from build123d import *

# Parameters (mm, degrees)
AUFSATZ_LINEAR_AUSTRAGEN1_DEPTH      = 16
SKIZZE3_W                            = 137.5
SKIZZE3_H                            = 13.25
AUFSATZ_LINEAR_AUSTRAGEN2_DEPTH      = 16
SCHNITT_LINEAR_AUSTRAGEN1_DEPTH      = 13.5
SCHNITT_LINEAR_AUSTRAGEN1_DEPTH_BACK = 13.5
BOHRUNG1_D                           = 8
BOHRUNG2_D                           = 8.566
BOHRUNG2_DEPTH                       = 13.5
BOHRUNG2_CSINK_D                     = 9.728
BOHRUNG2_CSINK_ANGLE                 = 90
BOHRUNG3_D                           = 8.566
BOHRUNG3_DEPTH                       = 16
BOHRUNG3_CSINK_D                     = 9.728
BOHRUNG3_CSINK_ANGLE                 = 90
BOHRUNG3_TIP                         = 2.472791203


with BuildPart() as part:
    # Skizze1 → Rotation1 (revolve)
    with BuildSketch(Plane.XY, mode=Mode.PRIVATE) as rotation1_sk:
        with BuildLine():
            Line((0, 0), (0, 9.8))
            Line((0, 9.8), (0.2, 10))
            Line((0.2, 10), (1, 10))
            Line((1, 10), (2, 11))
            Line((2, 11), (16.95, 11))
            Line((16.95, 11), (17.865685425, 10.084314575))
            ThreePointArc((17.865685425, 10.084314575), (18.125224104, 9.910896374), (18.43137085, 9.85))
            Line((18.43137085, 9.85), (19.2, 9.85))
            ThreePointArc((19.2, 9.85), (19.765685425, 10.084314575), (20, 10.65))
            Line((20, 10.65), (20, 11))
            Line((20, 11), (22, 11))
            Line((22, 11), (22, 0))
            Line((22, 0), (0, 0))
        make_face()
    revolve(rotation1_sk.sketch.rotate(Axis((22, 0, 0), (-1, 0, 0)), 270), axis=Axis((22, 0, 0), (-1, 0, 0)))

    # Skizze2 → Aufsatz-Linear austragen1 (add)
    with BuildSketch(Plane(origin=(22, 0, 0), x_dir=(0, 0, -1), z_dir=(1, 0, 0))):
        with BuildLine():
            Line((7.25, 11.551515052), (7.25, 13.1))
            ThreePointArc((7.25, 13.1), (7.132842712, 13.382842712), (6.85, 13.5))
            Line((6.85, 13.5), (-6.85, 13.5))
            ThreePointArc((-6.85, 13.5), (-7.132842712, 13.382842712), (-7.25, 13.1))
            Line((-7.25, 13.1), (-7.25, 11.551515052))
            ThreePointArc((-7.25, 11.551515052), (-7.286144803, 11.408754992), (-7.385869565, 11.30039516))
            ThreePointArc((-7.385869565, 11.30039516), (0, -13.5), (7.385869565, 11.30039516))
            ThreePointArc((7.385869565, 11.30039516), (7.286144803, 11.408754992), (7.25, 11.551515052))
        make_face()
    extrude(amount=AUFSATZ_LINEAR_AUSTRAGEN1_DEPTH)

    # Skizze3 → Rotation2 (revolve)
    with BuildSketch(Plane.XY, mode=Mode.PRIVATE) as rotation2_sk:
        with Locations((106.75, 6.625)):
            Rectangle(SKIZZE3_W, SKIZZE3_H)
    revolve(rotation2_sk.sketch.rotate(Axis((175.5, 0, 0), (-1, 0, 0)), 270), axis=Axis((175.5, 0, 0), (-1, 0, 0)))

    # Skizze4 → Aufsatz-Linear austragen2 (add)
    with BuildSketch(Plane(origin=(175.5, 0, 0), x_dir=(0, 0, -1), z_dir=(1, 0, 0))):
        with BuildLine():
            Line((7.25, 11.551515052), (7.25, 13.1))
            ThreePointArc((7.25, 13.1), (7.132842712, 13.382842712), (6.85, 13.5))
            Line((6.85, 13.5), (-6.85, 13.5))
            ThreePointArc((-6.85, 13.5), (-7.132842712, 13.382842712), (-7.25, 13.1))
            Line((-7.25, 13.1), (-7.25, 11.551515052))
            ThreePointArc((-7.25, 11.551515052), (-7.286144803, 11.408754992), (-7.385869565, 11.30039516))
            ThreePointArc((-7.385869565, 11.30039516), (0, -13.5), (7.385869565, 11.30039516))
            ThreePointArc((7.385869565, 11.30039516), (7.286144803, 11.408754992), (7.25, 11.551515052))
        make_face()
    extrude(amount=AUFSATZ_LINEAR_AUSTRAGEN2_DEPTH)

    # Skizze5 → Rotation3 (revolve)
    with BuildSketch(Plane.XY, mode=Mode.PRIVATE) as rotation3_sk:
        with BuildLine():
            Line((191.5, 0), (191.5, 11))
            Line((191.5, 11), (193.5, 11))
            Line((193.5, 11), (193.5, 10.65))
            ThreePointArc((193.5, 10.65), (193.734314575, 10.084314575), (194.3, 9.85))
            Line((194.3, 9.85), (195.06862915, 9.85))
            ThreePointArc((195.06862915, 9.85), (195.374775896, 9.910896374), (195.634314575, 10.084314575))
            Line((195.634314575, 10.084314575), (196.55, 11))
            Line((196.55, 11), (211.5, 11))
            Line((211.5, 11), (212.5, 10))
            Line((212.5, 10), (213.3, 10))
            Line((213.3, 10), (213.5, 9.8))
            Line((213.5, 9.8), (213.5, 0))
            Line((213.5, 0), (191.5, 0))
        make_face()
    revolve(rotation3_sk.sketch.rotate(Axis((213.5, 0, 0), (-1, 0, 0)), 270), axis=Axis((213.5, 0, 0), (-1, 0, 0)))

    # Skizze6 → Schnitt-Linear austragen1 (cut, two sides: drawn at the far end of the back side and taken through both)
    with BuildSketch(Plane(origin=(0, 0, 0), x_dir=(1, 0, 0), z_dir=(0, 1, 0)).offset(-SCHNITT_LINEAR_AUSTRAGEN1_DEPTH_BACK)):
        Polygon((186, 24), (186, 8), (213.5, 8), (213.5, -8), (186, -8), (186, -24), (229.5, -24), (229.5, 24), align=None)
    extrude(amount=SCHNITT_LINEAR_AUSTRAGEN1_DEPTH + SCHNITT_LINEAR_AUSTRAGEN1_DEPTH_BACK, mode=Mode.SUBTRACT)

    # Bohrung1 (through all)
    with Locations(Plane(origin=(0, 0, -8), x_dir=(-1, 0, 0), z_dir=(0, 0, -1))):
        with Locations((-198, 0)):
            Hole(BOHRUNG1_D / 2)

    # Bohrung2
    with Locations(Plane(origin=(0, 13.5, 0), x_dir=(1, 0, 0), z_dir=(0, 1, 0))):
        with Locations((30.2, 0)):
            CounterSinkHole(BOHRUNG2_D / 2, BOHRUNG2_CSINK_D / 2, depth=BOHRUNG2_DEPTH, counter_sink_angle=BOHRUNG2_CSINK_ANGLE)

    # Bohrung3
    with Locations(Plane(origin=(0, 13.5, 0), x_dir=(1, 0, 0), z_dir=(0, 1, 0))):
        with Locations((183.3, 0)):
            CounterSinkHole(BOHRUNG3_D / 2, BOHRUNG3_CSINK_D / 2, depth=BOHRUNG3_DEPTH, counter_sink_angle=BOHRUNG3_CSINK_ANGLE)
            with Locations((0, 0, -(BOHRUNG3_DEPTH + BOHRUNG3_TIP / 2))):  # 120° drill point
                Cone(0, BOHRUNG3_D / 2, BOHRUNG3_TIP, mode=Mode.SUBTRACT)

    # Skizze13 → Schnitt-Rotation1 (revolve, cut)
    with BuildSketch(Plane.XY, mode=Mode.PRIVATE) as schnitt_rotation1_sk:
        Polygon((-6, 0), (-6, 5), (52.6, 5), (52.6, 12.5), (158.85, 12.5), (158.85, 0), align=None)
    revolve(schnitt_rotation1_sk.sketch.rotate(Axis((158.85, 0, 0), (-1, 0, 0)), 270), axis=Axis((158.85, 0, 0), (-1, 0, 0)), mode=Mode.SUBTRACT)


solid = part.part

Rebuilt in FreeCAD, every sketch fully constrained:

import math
import FreeCAD as App
import Part
import Sketcher
Q = App.Units.Quantity


def add_polygon(sketch, points):
    """Adds a closed chain of lines whose ends are joined by coincident constraints."""
    first, n = sketch.GeometryCount, len(points)
    for a, b in zip(points, points[1:] + points[:1]):
        sketch.addGeometry(Part.LineSegment(App.Vector(*a, 0), App.Vector(*b, 0)), False)
    for i in range(n):
        sketch.addConstraint(Sketcher.Constraint("Coincident", first + i, 2, first + (i + 1) % n, 1))

doc = App.newDocument("Part")
params = doc.addObject("Spreadsheet::Sheet", "Params")
for row, (alias, value) in enumerate([
    ("sketch1_radius", "0.8 mm"),
    ("sketch1_width", "22 mm"),
    ("sketch1_width2", "2 mm"),
    ("sketch1_height", "11 mm"),
    ("sketch1_width3", "0.8 mm"),
    ("revolution_angle", "360 deg"),
    ("sketch2_radius", "0.4 mm"),
    ("sketch2_radius2", "0.3 mm"),
    ("sketch2_radius3", "13.5 mm"),
    ("sketch2_height", "13.7 mm"),
    ("pad1_length", "16 mm"),
    ("sketch3_width", "137.5 mm"),
    ("sketch3_height", "13.25 mm"),
    ("revolution2_angle", "360 deg"),
    ("sketch4_radius", "0.4 mm"),
    ("sketch4_radius2", "0.3 mm"),
    ("sketch4_radius3", "13.5 mm"),
    ("sketch4_height", "13.7 mm"),
    ("pad2_length", "16 mm"),
    ("sketch5_radius", "0.8 mm"),
    ("sketch5_width", "22 mm"),
    ("sketch5_width2", "2 mm"),
    ("sketch5_height", "11 mm"),
    ("sketch5_width3", "0.8 mm"),
    ("revolution3_angle", "360 deg"),
    ("sketch6_height", "16 mm"),
    ("sketch6_width", "27.5 mm"),
    ("sketch6_width2", "43.5 mm"),
    ("sketch7_diameter", "8 mm"),
    ("hole_diameter", "8 mm"),
    ("hole2_diameter", "8.566 mm"),
    ("hole2_depth", "13.5 mm"),
    ("hole2_csink_diameter", "9.728 mm"),
    ("hole3_diameter", "8.566 mm"),
    ("hole3_depth", "16 mm"),
    ("hole3_csink_diameter", "9.728 mm"),
    ("sketch10_height", "5 mm"),
    ("sketch10_width", "58.6 mm"),
    ("sketch10_height2", "12.5 mm"),
    ("sketch10_width2", "164.85 mm"),
    ("groove_angle", "360 deg"),
], start=1):
    params.set(f"A{row}", alias)
    params.set(f"B{row}", "=" + value)
    params.setAlias(f"B{row}", alias)

body = doc.addObject("PartDesign::Body", "Body")

# Sketch on XY plane
sketch1 = body.newObject("Sketcher::SketchObject", "Sketch")
sketch1.AttachmentSupport = (doc.getObject("XY_Plane"), [""])
sketch1.MapMode = "FlatFace"
sketch1.addGeometry([
    Part.LineSegment(App.Vector(0, 9.8, 0), App.Vector(0, 0, 0)),  # 0
    Part.LineSegment(App.Vector(0, 0, 0), App.Vector(22, 0, 0)),  # 1
    Part.LineSegment(App.Vector(22, 0, 0), App.Vector(22, 11, 0)),  # 2
    Part.LineSegment(App.Vector(22, 11, 0), App.Vector(20, 11, 0)),  # 3
    Part.LineSegment(App.Vector(20, 11, 0), App.Vector(20, 10.65, 0)),  # 4
    Part.ArcOfCircle(Part.Circle(App.Vector(19.2, 10.65, 0), App.Vector(0, 0, 1), 0.8), math.radians(-90), math.radians(0)),  # 5
    Part.LineSegment(App.Vector(19.2, 9.85, 0), App.Vector(18.43, 9.85, 0)),  # 6
    Part.ArcOfCircle(Part.Circle(App.Vector(18.43, 10.65, 0), App.Vector(0, 0, 1), 0.8), math.radians(-135), math.radians(-90)),  # 7
    Part.LineSegment(App.Vector(17.87, 10.08, 0), App.Vector(16.95, 11, 0)),  # 8
    Part.LineSegment(App.Vector(16.95, 11, 0), App.Vector(2, 11, 0)),  # 9
    Part.LineSegment(App.Vector(2, 11, 0), App.Vector(1, 10, 0)),  # 10
    Part.LineSegment(App.Vector(1, 10, 0), App.Vector(0.2, 10, 0)),  # 11
    Part.LineSegment(App.Vector(0.2, 10, 0), App.Vector(0, 9.8, 0)),  # 12
], False)
sketch1.addConstraint([
    Sketcher.Constraint("Coincident", 0, 2, 1, 1),
    Sketcher.Constraint("Coincident", 1, 2, 2, 1),
    Sketcher.Constraint("Coincident", 2, 2, 3, 1),
    Sketcher.Constraint("Coincident", 3, 2, 4, 1),
    Sketcher.Constraint("Tangent", 4, 2, 5, 2),
    Sketcher.Constraint("Tangent", 5, 1, 6, 1),
    Sketcher.Constraint("Tangent", 6, 2, 7, 2),
    Sketcher.Constraint("Tangent", 7, 1, 8, 1),
    Sketcher.Constraint("Coincident", 8, 2, 9, 1),
    Sketcher.Constraint("Coincident", 9, 2, 10, 1),
    Sketcher.Constraint("Coincident", 10, 2, 11, 1),
    Sketcher.Constraint("Coincident", 11, 2, 12, 1),
    Sketcher.Constraint("Coincident", 12, 2, 0, 1),
    Sketcher.Constraint("Vertical", 0),
    Sketcher.Constraint("Horizontal", 1),
    Sketcher.Constraint("Vertical", 2),
    Sketcher.Constraint("Horizontal", 3),
    Sketcher.Constraint("Vertical", 4),
    Sketcher.Constraint("Horizontal", 6),
    Sketcher.Constraint("Horizontal", 9),
    Sketcher.Constraint("Horizontal", 11),
    Sketcher.Constraint("Coincident", 0, 2, -1, 1),
    Sketcher.Constraint("Equal", 5, 7),
    Sketcher.Constraint("Perpendicular", 8, 10),
    Sketcher.Constraint("Parallel", 10, 12),
    Sketcher.Constraint("Horizontal", 3, 2, 8, 2),
    Sketcher.Constraint("Radius", 5, Q("0.8 mm")),
    Sketcher.Constraint("DistanceX", 1, 1, 1, 2, Q("22 mm")),
    Sketcher.Constraint("DistanceX", 3, 2, 3, 1, Q("2 mm")),
    Sketcher.Constraint("DistanceY", 2, 1, 2, 2, Q("11 mm")),
    Sketcher.Constraint("Angle", 8, Q("135 deg")),
    Sketcher.Constraint("DistanceX", 11, 2, 11, 1, Q("0.8 mm")),
    Sketcher.Constraint("DistanceY", 0, 2, 0, 1, Q("9.8 mm")),
    Sketcher.Constraint("DistanceX", -1, 1, 10, 2, Q("1 mm")),
    Sketcher.Constraint("DistanceX", 9, 2, 9, 1, Q("14.95 mm")),
    Sketcher.Constraint("DistanceY", 4, 2, 4, 1, Q("0.35 mm")),
])
sketch1.setExpression("Constraints[26]", "Params.sketch1_radius")
sketch1.setExpression("Constraints[27]", "Params.sketch1_width")
sketch1.setExpression("Constraints[28]", "Params.sketch1_width2")
sketch1.setExpression("Constraints[29]", "Params.sketch1_height")
sketch1.setExpression("Constraints[31]", "Params.sketch1_width3")
revolution = body.newObject("PartDesign::Revolution", "Revolution")
revolution.Profile = sketch1
revolution.ReferenceAxis = (sketch1, ["H_Axis"])
revolution.setExpression("Angle", "Params.revolution_angle")

# Sketch on YZ plane
sketch2 = body.newObject("Sketcher::SketchObject", "Sketch001")
sketch2.AttachmentSupport = (doc.getObject("YZ_Plane"), [""])
sketch2.MapMode = "FlatFace"
sketch2.AttachmentOffset = App.Placement(App.Vector(0, 0, 22), App.Rotation())
sketch2.addGeometry([
    Part.LineSegment(App.Vector(11.55, -7.25, 0), App.Vector(13.1, -7.25, 0)),  # 0
    Part.ArcOfCircle(Part.Circle(App.Vector(13.1, -6.85, 0), App.Vector(0, 0, 1), 0.4), math.radians(-90), math.radians(0)),  # 1
    Part.LineSegment(App.Vector(13.5, -6.85, 0), App.Vector(13.5, 6.85, 0)),  # 2
    Part.ArcOfCircle(Part.Circle(App.Vector(13.1, 6.85, 0), App.Vector(0, 0, 1), 0.4), math.radians(0), math.radians(90)),  # 3
    Part.LineSegment(App.Vector(13.1, 7.25, 0), App.Vector(11.55, 7.25, 0)),  # 4
    Part.ArcOfCircle(Part.Circle(App.Vector(11.55, 7.55, 0), App.Vector(0, 0, 1), 0.3), math.radians(-147), math.radians(-90)),  # 5
    Part.ArcOfCircle(Part.Circle(App.Vector(0, 0, 0), App.Vector(0, 0, 1), 13.5), math.radians(33), math.radians(327)),  # 6
    Part.ArcOfCircle(Part.Circle(App.Vector(11.55, -7.55, 0), App.Vector(0, 0, 1), 0.3), math.radians(90), math.radians(147)),  # 7
], False)
sketch2.addConstraint([
    Sketcher.Constraint("Tangent", 0, 2, 1, 1),
    Sketcher.Constraint("Tangent", 1, 2, 2, 1),
    Sketcher.Constraint("Tangent", 2, 2, 3, 1),
    Sketcher.Constraint("Tangent", 3, 2, 4, 1),
    Sketcher.Constraint("Tangent", 4, 2, 5, 2),
    Sketcher.Constraint("Tangent", 5, 1, 6, 1),
    Sketcher.Constraint("Tangent", 6, 2, 7, 2),
    Sketcher.Constraint("Tangent", 7, 1, 0, 1),
    Sketcher.Constraint("Horizontal", 0),
    Sketcher.Constraint("Vertical", 2),
    Sketcher.Constraint("Horizontal", 4),
    Sketcher.Constraint("Coincident", 6, 3, -1, 1),
    Sketcher.Constraint("Equal", 1, 3),
    Sketcher.Constraint("Equal", 5, 7),
    Sketcher.Constraint("Vertical", 5, 3, 7, 3),
    Sketcher.Constraint("Radius", 1, Q("0.4 mm")),
    Sketcher.Constraint("Radius", 5, Q("0.3 mm")),
    Sketcher.Constraint("Radius", 6, Q("13.5 mm")),
    Sketcher.Constraint("DistanceY", 2, 1, 2, 2, Q("13.7 mm")),
    Sketcher.Constraint("DistanceX", -1, 1, 1, 3, Q("13.1 mm")),
])
sketch2.setExpression("Constraints[15]", "Params.sketch2_radius")
sketch2.setExpression("Constraints[16]", "Params.sketch2_radius2")
sketch2.setExpression("Constraints[17]", "Params.sketch2_radius3")
sketch2.setExpression("Constraints[18]", "Params.sketch2_height")
pad1 = body.newObject("PartDesign::Pad", "Pad")
pad1.Profile = sketch2
pad1.setExpression("Length", "Params.pad1_length")

# Sketch on XY plane
sketch3 = body.newObject("Sketcher::SketchObject", "Sketch002")
sketch3.AttachmentSupport = (doc.getObject("XY_Plane"), [""])
sketch3.MapMode = "FlatFace"
add_polygon(sketch3, [(38, 13), (38, 0), (176, 0), (176, 13)])  # lines 0-3
sketch3.addConstraint([
    Sketcher.Constraint("Vertical", 0),
    Sketcher.Constraint("Horizontal", 1),
    Sketcher.Constraint("Vertical", 2),
    Sketcher.Constraint("Horizontal", 3),
    Sketcher.Constraint("PointOnObject", 0, 2, -1),
    Sketcher.Constraint("DistanceX", 1, 1, 1, 2, Q("137.5 mm")),
    Sketcher.Constraint("DistanceX", -1, 1, 0, 2, Q("38 mm")),
    Sketcher.Constraint("DistanceY", 0, 2, 0, 1, Q("13.25 mm")),
])
sketch3.setExpression("Constraints[9]", "Params.sketch3_width")
sketch3.setExpression("Constraints[11]", "Params.sketch3_height")
revolution2 = body.newObject("PartDesign::Revolution", "Revolution001")
revolution2.Profile = sketch3
revolution2.ReferenceAxis = (sketch3, ["H_Axis"])
revolution2.setExpression("Angle", "Params.revolution2_angle")

# Sketch on YZ plane
sketch4 = body.newObject("Sketcher::SketchObject", "Sketch003")
sketch4.AttachmentSupport = (doc.getObject("YZ_Plane"), [""])
sketch4.MapMode = "FlatFace"
sketch4.AttachmentOffset = App.Placement(App.Vector(0, 0, 175.5), App.Rotation())
sketch4.addGeometry([
    Part.LineSegment(App.Vector(11.55, -7.25, 0), App.Vector(13.1, -7.25, 0)),  # 0
    Part.ArcOfCircle(Part.Circle(App.Vector(13.1, -6.85, 0), App.Vector(0, 0, 1), 0.4), math.radians(-90), math.radians(0)),  # 1
    Part.LineSegment(App.Vector(13.5, -6.85, 0), App.Vector(13.5, 6.85, 0)),  # 2
    Part.ArcOfCircle(Part.Circle(App.Vector(13.1, 6.85, 0), App.Vector(0, 0, 1), 0.4), math.radians(0), math.radians(90)),  # 3
    Part.LineSegment(App.Vector(13.1, 7.25, 0), App.Vector(11.55, 7.25, 0)),  # 4
    Part.ArcOfCircle(Part.Circle(App.Vector(11.55, 7.55, 0), App.Vector(0, 0, 1), 0.3), math.radians(-147), math.radians(-90)),  # 5
    Part.ArcOfCircle(Part.Circle(App.Vector(0, 0, 0), App.Vector(0, 0, 1), 13.5), math.radians(33), math.radians(327)),  # 6
    Part.ArcOfCircle(Part.Circle(App.Vector(11.55, -7.55, 0), App.Vector(0, 0, 1), 0.3), math.radians(90), math.radians(147)),  # 7
], False)
sketch4.addConstraint([
    Sketcher.Constraint("Tangent", 0, 2, 1, 1),
    Sketcher.Constraint("Tangent", 1, 2, 2, 1),
    Sketcher.Constraint("Tangent", 2, 2, 3, 1),
    Sketcher.Constraint("Tangent", 3, 2, 4, 1),
    Sketcher.Constraint("Tangent", 4, 2, 5, 2),
    Sketcher.Constraint("Tangent", 5, 1, 6, 1),
    Sketcher.Constraint("Tangent", 6, 2, 7, 2),
    Sketcher.Constraint("Tangent", 7, 1, 0, 1),
    Sketcher.Constraint("Horizontal", 0),
    Sketcher.Constraint("Vertical", 2),
    Sketcher.Constraint("Horizontal", 4),
    Sketcher.Constraint("Coincident", 6, 3, -1, 1),
    Sketcher.Constraint("Equal", 1, 3),
    Sketcher.Constraint("Equal", 5, 7),
    Sketcher.Constraint("Vertical", 5, 3, 7, 3),
    Sketcher.Constraint("Radius", 1, Q("0.4 mm")),
    Sketcher.Constraint("Radius", 5, Q("0.3 mm")),
    Sketcher.Constraint("Radius", 6, Q("13.5 mm")),
    Sketcher.Constraint("DistanceY", 2, 1, 2, 2, Q("13.7 mm")),
    Sketcher.Constraint("DistanceX", -1, 1, 1, 3, Q("13.1 mm")),
])
sketch4.setExpression("Constraints[15]", "Params.sketch4_radius")
sketch4.setExpression("Constraints[16]", "Params.sketch4_radius2")
sketch4.setExpression("Constraints[17]", "Params.sketch4_radius3")
sketch4.setExpression("Constraints[18]", "Params.sketch4_height")
pad2 = body.newObject("PartDesign::Pad", "Pad001")
pad2.Profile = sketch4
pad2.setExpression("Length", "Params.pad2_length")

# Sketch on XY plane
sketch5 = body.newObject("Sketcher::SketchObject", "Sketch004")
sketch5.AttachmentSupport = (doc.getObject("XY_Plane"), [""])
sketch5.MapMode = "FlatFace"
sketch5.addGeometry([
    Part.LineSegment(App.Vector(191.5, 11, 0), App.Vector(191.5, 0, 0)),  # 0
    Part.LineSegment(App.Vector(191.5, 0, 0), App.Vector(213.5, 0, 0)),  # 1
    Part.LineSegment(App.Vector(213.5, 0, 0), App.Vector(213.5, 9.8, 0)),  # 2
    Part.LineSegment(App.Vector(213.5, 9.8, 0), App.Vector(213.3, 10, 0)),  # 3
    Part.LineSegment(App.Vector(213.3, 10, 0), App.Vector(212.5, 10, 0)),  # 4
    Part.LineSegment(App.Vector(212.5, 10, 0), App.Vector(211.5, 11, 0)),  # 5
    Part.LineSegment(App.Vector(211.5, 11, 0), App.Vector(196.55, 11, 0)),  # 6
    Part.LineSegment(App.Vector(196.55, 11, 0), App.Vector(195.63, 10.08, 0)),  # 7
    Part.ArcOfCircle(Part.Circle(App.Vector(195.07, 10.65, 0), App.Vector(0, 0, 1), 0.8), math.radians(-90), math.radians(-45)),  # 8
    Part.LineSegment(App.Vector(195.07, 9.85, 0), App.Vector(194.3, 9.85, 0)),  # 9
    Part.ArcOfCircle(Part.Circle(App.Vector(194.3, 10.65, 0), App.Vector(0, 0, 1), 0.8), math.radians(180), math.radians(270)),  # 10
    Part.LineSegment(App.Vector(193.5, 10.65, 0), App.Vector(193.5, 11, 0)),  # 11
    Part.LineSegment(App.Vector(193.5, 11, 0), App.Vector(191.5, 11, 0)),  # 12
], False)
sketch5.addConstraint([
    Sketcher.Constraint("Coincident", 0, 2, 1, 1),
    Sketcher.Constraint("Coincident", 1, 2, 2, 1),
    Sketcher.Constraint("Coincident", 2, 2, 3, 1),
    Sketcher.Constraint("Coincident", 3, 2, 4, 1),
    Sketcher.Constraint("Coincident", 4, 2, 5, 1),
    Sketcher.Constraint("Coincident", 5, 2, 6, 1),
    Sketcher.Constraint("Coincident", 6, 2, 7, 1),
    Sketcher.Constraint("Tangent", 7, 2, 8, 2),
    Sketcher.Constraint("Tangent", 8, 1, 9, 1),
    Sketcher.Constraint("Tangent", 9, 2, 10, 2),
    Sketcher.Constraint("Tangent", 10, 1, 11, 1),
    Sketcher.Constraint("Coincident", 11, 2, 12, 1),
    Sketcher.Constraint("Coincident", 12, 2, 0, 1),
    Sketcher.Constraint("Vertical", 0),
    Sketcher.Constraint("Horizontal", 1),
    Sketcher.Constraint("Vertical", 2),
    Sketcher.Constraint("Horizontal", 4),
    Sketcher.Constraint("Horizontal", 6),
    Sketcher.Constraint("Horizontal", 9),
    Sketcher.Constraint("Vertical", 11),
    Sketcher.Constraint("Horizontal", 12),
    Sketcher.Constraint("Equal", 8, 10),
    Sketcher.Constraint("PointOnObject", 0, 2, -1),
    Sketcher.Constraint("Parallel", 3, 5),
    Sketcher.Constraint("Perpendicular", 5, 7),
    Sketcher.Constraint("Horizontal", 6, 2, 11, 2),
    Sketcher.Constraint("Radius", 8, Q("0.8 mm")),
    Sketcher.Constraint("DistanceX", 1, 1, 1, 2, Q("22 mm")),
    Sketcher.Constraint("DistanceX", 12, 2, 12, 1, Q("2 mm")),
    Sketcher.Constraint("DistanceY", 0, 2, 0, 1, Q("11 mm")),
    Sketcher.Constraint("Angle", 3, Q("135 deg")),
    Sketcher.Constraint("DistanceX", 4, 2, 4, 1, Q("0.8 mm")),
    Sketcher.Constraint("DistanceY", 2, 1, 2, 2, Q("9.8 mm")),
    Sketcher.Constraint("DistanceY", -1, 1, 3, 2, Q("10 mm")),
    Sketcher.Constraint("DistanceX", 6, 2, 6, 1, Q("14.95 mm")),
    Sketcher.Constraint("DistanceY", 11, 1, 11, 2, Q("0.35 mm")),
    Sketcher.Constraint("DistanceX", -1, 1, 10, 3, Q("194.3 mm")),
])
sketch5.setExpression("Constraints[26]", "Params.sketch5_radius")
sketch5.setExpression("Constraints[27]", "Params.sketch5_width")
sketch5.setExpression("Constraints[28]", "Params.sketch5_width2")
sketch5.setExpression("Constraints[29]", "Params.sketch5_height")
sketch5.setExpression("Constraints[31]", "Params.sketch5_width3")
revolution3 = body.newObject("PartDesign::Revolution", "Revolution002")
revolution3.Profile = sketch5
revolution3.ReferenceAxis = (sketch5, ["H_Axis"])
revolution3.setExpression("Angle", "Params.revolution3_angle")

# Sketch on XZ plane
sketch6 = body.newObject("Sketcher::SketchObject", "Sketch005")
sketch6.AttachmentSupport = (doc.getObject("XZ_Plane"), [""])
sketch6.MapMode = "FlatFace"
add_polygon(sketch6, [(186, -24), (186, -8), (214, -8), (214, 8), (186, 8), (186, 24), (230, 24), (230, -24)])  # lines 0-7
sketch6.addConstraint([
    Sketcher.Constraint("Vertical", 0),
    Sketcher.Constraint("Horizontal", 1),
    Sketcher.Constraint("Vertical", 2),
    Sketcher.Constraint("Horizontal", 3),
    Sketcher.Constraint("Vertical", 4),
    Sketcher.Constraint("Horizontal", 5),
    Sketcher.Constraint("Vertical", 6),
    Sketcher.Constraint("Horizontal", 7),
    Sketcher.Constraint("Symmetric", 0, 2, 3, 2, -1),
    Sketcher.Constraint("Equal", 0, 2),
    Sketcher.Constraint("Equal", 2, 4),
    Sketcher.Constraint("DistanceY", 0, 1, 0, 2, Q("16 mm")),
    Sketcher.Constraint("DistanceX", 1, 1, 1, 2, Q("27.5 mm")),
    Sketcher.Constraint("DistanceX", 5, 1, 5, 2, Q("43.5 mm")),
    Sketcher.Constraint("DistanceX", -1, 1, 0, 2, Q("186 mm")),
])
sketch6.setExpression("Constraints[19]", "Params.sketch6_height")
sketch6.setExpression("Constraints[20]", "Params.sketch6_width")
sketch6.setExpression("Constraints[21]", "Params.sketch6_width2")
pocket1 = body.newObject("PartDesign::Pocket", "Pocket")
pocket1.Profile = sketch6
pocket1.Type = "ThroughAll"
pocket1.Midplane = True

# Sketch on XY plane
sketch7 = body.newObject("Sketcher::SketchObject", "Sketch006")
sketch7.AttachmentSupport = (doc.getObject("XY_Plane"), [""])
sketch7.MapMode = "FlatFace"
sketch7.AttachmentOffset = App.Placement(App.Vector(0, 0, -8), App.Rotation())
sketch7.addGeometry(Part.Circle(App.Vector(198, 0, 0), App.Vector(0, 0, 1), 4), False)
sketch7.addConstraint([
    Sketcher.Constraint("PointOnObject", 0, 3, -1),
    Sketcher.Constraint("Diameter", 0, Q("8 mm")),
    Sketcher.Constraint("DistanceX", -1, 1, 0, 3, Q("198 mm")),
])
sketch7.setExpression("Constraints[1]", "Params.sketch7_diameter")
doc.recompute()
hole = body.newObject("PartDesign::Hole", "Hole")
hole.Profile = sketch7
hole.ThreadType = "None"
hole.setExpression("Diameter", "Params.hole_diameter")
hole.DepthType = "ThroughAll"
hole.Reversed = True

# Sketch on XZ plane
sketch8 = body.newObject("Sketcher::SketchObject", "Sketch007")
sketch8.AttachmentSupport = (doc.getObject("XZ_Plane"), [""])
sketch8.MapMode = "FlatFace"
sketch8.AttachmentOffset = App.Placement(App.Vector(0, 0, -13.5), App.Rotation())
sketch8.addGeometry(Part.Circle(App.Vector(30.2, 0, 0), App.Vector(0, 0, 1), 4.3), False)
sketch8.addConstraint([
    Sketcher.Constraint("PointOnObject", 0, 3, -1),
    Sketcher.Constraint("Diameter", 0, Q("8.566 mm")),
    Sketcher.Constraint("DistanceX", -1, 1, 0, 3, Q("30.2 mm")),
])
doc.recompute()
hole2 = body.newObject("PartDesign::Hole", "Hole001")
hole2.Profile = sketch8
hole2.ThreadType = "None"
hole2.setExpression("Diameter", "Params.hole2_diameter")
hole2.DepthType = "Dimension"
hole2.setExpression("Depth", "Params.hole2_depth")
hole2.DrillPoint = "Flat"
hole2.HoleCutType = "Countersink"
hole2.setExpression("HoleCutDiameter", "Params.hole2_csink_diameter")
hole2.HoleCutCountersinkAngle = 90
hole2.Reversed = True

# Sketch on XZ plane
sketch9 = body.newObject("Sketcher::SketchObject", "Sketch008")
sketch9.AttachmentSupport = (doc.getObject("XZ_Plane"), [""])
sketch9.MapMode = "FlatFace"
sketch9.AttachmentOffset = App.Placement(App.Vector(0, 0, -13.5), App.Rotation())
sketch9.addGeometry(Part.Circle(App.Vector(183.3, 0, 0), App.Vector(0, 0, 1), 4.3), False)
sketch9.addConstraint([
    Sketcher.Constraint("PointOnObject", 0, 3, -1),
    Sketcher.Constraint("Diameter", 0, Q("8.566 mm")),
    Sketcher.Constraint("DistanceX", -1, 1, 0, 3, Q("183.3 mm")),
])
doc.recompute()
hole3 = body.newObject("PartDesign::Hole", "Hole002")
hole3.Profile = sketch9
hole3.ThreadType = "None"
hole3.setExpression("Diameter", "Params.hole3_diameter")
hole3.DepthType = "Dimension"
hole3.setExpression("Depth", "Params.hole3_depth")
hole3.DrillPoint = "Angled"
hole3.DrillPointAngle = 120
hole3.HoleCutType = "Countersink"
hole3.setExpression("HoleCutDiameter", "Params.hole3_csink_diameter")
hole3.HoleCutCountersinkAngle = 90
hole3.Reversed = True

# Sketch on XY plane
sketch10 = body.newObject("Sketcher::SketchObject", "Sketch009")
sketch10.AttachmentSupport = (doc.getObject("XY_Plane"), [""])
sketch10.MapMode = "FlatFace"
add_polygon(sketch10, [(-6, 5), (-6, 0), (159, 0), (159, 12), (53, 12), (53, 5)])  # lines 0-5
sketch10.addConstraint([
    Sketcher.Constraint("Vertical", 0),
    Sketcher.Constraint("Horizontal", 1),
    Sketcher.Constraint("Vertical", 2),
    Sketcher.Constraint("Horizontal", 3),
    Sketcher.Constraint("Vertical", 4),
    Sketcher.Constraint("Horizontal", 5),
    Sketcher.Constraint("PointOnObject", 0, 2, -1),
    Sketcher.Constraint("DistanceY", 0, 2, 0, 1, Q("5 mm")),
    Sketcher.Constraint("DistanceX", 5, 2, 5, 1, Q("58.6 mm")),
    Sketcher.Constraint("DistanceY", 2, 1, 2, 2, Q("12.5 mm")),
    Sketcher.Constraint("DistanceX", 0, 2, -1, 1, Q("6 mm")),
    Sketcher.Constraint("DistanceX", 1, 1, 1, 2, Q("164.85 mm")),
])
sketch10.setExpression("Constraints[13]", "Params.sketch10_height")
sketch10.setExpression("Constraints[14]", "Params.sketch10_width")
sketch10.setExpression("Constraints[15]", "Params.sketch10_height2")
sketch10.setExpression("Constraints[17]", "Params.sketch10_width2")
groove = body.newObject("PartDesign::Groove", "Groove")
groove.Profile = sketch10
groove.ReferenceAxis = (sketch10, ["H_Axis"])
groove.setExpression("Angle", "Params.groove_angle")

doc.recompute()
